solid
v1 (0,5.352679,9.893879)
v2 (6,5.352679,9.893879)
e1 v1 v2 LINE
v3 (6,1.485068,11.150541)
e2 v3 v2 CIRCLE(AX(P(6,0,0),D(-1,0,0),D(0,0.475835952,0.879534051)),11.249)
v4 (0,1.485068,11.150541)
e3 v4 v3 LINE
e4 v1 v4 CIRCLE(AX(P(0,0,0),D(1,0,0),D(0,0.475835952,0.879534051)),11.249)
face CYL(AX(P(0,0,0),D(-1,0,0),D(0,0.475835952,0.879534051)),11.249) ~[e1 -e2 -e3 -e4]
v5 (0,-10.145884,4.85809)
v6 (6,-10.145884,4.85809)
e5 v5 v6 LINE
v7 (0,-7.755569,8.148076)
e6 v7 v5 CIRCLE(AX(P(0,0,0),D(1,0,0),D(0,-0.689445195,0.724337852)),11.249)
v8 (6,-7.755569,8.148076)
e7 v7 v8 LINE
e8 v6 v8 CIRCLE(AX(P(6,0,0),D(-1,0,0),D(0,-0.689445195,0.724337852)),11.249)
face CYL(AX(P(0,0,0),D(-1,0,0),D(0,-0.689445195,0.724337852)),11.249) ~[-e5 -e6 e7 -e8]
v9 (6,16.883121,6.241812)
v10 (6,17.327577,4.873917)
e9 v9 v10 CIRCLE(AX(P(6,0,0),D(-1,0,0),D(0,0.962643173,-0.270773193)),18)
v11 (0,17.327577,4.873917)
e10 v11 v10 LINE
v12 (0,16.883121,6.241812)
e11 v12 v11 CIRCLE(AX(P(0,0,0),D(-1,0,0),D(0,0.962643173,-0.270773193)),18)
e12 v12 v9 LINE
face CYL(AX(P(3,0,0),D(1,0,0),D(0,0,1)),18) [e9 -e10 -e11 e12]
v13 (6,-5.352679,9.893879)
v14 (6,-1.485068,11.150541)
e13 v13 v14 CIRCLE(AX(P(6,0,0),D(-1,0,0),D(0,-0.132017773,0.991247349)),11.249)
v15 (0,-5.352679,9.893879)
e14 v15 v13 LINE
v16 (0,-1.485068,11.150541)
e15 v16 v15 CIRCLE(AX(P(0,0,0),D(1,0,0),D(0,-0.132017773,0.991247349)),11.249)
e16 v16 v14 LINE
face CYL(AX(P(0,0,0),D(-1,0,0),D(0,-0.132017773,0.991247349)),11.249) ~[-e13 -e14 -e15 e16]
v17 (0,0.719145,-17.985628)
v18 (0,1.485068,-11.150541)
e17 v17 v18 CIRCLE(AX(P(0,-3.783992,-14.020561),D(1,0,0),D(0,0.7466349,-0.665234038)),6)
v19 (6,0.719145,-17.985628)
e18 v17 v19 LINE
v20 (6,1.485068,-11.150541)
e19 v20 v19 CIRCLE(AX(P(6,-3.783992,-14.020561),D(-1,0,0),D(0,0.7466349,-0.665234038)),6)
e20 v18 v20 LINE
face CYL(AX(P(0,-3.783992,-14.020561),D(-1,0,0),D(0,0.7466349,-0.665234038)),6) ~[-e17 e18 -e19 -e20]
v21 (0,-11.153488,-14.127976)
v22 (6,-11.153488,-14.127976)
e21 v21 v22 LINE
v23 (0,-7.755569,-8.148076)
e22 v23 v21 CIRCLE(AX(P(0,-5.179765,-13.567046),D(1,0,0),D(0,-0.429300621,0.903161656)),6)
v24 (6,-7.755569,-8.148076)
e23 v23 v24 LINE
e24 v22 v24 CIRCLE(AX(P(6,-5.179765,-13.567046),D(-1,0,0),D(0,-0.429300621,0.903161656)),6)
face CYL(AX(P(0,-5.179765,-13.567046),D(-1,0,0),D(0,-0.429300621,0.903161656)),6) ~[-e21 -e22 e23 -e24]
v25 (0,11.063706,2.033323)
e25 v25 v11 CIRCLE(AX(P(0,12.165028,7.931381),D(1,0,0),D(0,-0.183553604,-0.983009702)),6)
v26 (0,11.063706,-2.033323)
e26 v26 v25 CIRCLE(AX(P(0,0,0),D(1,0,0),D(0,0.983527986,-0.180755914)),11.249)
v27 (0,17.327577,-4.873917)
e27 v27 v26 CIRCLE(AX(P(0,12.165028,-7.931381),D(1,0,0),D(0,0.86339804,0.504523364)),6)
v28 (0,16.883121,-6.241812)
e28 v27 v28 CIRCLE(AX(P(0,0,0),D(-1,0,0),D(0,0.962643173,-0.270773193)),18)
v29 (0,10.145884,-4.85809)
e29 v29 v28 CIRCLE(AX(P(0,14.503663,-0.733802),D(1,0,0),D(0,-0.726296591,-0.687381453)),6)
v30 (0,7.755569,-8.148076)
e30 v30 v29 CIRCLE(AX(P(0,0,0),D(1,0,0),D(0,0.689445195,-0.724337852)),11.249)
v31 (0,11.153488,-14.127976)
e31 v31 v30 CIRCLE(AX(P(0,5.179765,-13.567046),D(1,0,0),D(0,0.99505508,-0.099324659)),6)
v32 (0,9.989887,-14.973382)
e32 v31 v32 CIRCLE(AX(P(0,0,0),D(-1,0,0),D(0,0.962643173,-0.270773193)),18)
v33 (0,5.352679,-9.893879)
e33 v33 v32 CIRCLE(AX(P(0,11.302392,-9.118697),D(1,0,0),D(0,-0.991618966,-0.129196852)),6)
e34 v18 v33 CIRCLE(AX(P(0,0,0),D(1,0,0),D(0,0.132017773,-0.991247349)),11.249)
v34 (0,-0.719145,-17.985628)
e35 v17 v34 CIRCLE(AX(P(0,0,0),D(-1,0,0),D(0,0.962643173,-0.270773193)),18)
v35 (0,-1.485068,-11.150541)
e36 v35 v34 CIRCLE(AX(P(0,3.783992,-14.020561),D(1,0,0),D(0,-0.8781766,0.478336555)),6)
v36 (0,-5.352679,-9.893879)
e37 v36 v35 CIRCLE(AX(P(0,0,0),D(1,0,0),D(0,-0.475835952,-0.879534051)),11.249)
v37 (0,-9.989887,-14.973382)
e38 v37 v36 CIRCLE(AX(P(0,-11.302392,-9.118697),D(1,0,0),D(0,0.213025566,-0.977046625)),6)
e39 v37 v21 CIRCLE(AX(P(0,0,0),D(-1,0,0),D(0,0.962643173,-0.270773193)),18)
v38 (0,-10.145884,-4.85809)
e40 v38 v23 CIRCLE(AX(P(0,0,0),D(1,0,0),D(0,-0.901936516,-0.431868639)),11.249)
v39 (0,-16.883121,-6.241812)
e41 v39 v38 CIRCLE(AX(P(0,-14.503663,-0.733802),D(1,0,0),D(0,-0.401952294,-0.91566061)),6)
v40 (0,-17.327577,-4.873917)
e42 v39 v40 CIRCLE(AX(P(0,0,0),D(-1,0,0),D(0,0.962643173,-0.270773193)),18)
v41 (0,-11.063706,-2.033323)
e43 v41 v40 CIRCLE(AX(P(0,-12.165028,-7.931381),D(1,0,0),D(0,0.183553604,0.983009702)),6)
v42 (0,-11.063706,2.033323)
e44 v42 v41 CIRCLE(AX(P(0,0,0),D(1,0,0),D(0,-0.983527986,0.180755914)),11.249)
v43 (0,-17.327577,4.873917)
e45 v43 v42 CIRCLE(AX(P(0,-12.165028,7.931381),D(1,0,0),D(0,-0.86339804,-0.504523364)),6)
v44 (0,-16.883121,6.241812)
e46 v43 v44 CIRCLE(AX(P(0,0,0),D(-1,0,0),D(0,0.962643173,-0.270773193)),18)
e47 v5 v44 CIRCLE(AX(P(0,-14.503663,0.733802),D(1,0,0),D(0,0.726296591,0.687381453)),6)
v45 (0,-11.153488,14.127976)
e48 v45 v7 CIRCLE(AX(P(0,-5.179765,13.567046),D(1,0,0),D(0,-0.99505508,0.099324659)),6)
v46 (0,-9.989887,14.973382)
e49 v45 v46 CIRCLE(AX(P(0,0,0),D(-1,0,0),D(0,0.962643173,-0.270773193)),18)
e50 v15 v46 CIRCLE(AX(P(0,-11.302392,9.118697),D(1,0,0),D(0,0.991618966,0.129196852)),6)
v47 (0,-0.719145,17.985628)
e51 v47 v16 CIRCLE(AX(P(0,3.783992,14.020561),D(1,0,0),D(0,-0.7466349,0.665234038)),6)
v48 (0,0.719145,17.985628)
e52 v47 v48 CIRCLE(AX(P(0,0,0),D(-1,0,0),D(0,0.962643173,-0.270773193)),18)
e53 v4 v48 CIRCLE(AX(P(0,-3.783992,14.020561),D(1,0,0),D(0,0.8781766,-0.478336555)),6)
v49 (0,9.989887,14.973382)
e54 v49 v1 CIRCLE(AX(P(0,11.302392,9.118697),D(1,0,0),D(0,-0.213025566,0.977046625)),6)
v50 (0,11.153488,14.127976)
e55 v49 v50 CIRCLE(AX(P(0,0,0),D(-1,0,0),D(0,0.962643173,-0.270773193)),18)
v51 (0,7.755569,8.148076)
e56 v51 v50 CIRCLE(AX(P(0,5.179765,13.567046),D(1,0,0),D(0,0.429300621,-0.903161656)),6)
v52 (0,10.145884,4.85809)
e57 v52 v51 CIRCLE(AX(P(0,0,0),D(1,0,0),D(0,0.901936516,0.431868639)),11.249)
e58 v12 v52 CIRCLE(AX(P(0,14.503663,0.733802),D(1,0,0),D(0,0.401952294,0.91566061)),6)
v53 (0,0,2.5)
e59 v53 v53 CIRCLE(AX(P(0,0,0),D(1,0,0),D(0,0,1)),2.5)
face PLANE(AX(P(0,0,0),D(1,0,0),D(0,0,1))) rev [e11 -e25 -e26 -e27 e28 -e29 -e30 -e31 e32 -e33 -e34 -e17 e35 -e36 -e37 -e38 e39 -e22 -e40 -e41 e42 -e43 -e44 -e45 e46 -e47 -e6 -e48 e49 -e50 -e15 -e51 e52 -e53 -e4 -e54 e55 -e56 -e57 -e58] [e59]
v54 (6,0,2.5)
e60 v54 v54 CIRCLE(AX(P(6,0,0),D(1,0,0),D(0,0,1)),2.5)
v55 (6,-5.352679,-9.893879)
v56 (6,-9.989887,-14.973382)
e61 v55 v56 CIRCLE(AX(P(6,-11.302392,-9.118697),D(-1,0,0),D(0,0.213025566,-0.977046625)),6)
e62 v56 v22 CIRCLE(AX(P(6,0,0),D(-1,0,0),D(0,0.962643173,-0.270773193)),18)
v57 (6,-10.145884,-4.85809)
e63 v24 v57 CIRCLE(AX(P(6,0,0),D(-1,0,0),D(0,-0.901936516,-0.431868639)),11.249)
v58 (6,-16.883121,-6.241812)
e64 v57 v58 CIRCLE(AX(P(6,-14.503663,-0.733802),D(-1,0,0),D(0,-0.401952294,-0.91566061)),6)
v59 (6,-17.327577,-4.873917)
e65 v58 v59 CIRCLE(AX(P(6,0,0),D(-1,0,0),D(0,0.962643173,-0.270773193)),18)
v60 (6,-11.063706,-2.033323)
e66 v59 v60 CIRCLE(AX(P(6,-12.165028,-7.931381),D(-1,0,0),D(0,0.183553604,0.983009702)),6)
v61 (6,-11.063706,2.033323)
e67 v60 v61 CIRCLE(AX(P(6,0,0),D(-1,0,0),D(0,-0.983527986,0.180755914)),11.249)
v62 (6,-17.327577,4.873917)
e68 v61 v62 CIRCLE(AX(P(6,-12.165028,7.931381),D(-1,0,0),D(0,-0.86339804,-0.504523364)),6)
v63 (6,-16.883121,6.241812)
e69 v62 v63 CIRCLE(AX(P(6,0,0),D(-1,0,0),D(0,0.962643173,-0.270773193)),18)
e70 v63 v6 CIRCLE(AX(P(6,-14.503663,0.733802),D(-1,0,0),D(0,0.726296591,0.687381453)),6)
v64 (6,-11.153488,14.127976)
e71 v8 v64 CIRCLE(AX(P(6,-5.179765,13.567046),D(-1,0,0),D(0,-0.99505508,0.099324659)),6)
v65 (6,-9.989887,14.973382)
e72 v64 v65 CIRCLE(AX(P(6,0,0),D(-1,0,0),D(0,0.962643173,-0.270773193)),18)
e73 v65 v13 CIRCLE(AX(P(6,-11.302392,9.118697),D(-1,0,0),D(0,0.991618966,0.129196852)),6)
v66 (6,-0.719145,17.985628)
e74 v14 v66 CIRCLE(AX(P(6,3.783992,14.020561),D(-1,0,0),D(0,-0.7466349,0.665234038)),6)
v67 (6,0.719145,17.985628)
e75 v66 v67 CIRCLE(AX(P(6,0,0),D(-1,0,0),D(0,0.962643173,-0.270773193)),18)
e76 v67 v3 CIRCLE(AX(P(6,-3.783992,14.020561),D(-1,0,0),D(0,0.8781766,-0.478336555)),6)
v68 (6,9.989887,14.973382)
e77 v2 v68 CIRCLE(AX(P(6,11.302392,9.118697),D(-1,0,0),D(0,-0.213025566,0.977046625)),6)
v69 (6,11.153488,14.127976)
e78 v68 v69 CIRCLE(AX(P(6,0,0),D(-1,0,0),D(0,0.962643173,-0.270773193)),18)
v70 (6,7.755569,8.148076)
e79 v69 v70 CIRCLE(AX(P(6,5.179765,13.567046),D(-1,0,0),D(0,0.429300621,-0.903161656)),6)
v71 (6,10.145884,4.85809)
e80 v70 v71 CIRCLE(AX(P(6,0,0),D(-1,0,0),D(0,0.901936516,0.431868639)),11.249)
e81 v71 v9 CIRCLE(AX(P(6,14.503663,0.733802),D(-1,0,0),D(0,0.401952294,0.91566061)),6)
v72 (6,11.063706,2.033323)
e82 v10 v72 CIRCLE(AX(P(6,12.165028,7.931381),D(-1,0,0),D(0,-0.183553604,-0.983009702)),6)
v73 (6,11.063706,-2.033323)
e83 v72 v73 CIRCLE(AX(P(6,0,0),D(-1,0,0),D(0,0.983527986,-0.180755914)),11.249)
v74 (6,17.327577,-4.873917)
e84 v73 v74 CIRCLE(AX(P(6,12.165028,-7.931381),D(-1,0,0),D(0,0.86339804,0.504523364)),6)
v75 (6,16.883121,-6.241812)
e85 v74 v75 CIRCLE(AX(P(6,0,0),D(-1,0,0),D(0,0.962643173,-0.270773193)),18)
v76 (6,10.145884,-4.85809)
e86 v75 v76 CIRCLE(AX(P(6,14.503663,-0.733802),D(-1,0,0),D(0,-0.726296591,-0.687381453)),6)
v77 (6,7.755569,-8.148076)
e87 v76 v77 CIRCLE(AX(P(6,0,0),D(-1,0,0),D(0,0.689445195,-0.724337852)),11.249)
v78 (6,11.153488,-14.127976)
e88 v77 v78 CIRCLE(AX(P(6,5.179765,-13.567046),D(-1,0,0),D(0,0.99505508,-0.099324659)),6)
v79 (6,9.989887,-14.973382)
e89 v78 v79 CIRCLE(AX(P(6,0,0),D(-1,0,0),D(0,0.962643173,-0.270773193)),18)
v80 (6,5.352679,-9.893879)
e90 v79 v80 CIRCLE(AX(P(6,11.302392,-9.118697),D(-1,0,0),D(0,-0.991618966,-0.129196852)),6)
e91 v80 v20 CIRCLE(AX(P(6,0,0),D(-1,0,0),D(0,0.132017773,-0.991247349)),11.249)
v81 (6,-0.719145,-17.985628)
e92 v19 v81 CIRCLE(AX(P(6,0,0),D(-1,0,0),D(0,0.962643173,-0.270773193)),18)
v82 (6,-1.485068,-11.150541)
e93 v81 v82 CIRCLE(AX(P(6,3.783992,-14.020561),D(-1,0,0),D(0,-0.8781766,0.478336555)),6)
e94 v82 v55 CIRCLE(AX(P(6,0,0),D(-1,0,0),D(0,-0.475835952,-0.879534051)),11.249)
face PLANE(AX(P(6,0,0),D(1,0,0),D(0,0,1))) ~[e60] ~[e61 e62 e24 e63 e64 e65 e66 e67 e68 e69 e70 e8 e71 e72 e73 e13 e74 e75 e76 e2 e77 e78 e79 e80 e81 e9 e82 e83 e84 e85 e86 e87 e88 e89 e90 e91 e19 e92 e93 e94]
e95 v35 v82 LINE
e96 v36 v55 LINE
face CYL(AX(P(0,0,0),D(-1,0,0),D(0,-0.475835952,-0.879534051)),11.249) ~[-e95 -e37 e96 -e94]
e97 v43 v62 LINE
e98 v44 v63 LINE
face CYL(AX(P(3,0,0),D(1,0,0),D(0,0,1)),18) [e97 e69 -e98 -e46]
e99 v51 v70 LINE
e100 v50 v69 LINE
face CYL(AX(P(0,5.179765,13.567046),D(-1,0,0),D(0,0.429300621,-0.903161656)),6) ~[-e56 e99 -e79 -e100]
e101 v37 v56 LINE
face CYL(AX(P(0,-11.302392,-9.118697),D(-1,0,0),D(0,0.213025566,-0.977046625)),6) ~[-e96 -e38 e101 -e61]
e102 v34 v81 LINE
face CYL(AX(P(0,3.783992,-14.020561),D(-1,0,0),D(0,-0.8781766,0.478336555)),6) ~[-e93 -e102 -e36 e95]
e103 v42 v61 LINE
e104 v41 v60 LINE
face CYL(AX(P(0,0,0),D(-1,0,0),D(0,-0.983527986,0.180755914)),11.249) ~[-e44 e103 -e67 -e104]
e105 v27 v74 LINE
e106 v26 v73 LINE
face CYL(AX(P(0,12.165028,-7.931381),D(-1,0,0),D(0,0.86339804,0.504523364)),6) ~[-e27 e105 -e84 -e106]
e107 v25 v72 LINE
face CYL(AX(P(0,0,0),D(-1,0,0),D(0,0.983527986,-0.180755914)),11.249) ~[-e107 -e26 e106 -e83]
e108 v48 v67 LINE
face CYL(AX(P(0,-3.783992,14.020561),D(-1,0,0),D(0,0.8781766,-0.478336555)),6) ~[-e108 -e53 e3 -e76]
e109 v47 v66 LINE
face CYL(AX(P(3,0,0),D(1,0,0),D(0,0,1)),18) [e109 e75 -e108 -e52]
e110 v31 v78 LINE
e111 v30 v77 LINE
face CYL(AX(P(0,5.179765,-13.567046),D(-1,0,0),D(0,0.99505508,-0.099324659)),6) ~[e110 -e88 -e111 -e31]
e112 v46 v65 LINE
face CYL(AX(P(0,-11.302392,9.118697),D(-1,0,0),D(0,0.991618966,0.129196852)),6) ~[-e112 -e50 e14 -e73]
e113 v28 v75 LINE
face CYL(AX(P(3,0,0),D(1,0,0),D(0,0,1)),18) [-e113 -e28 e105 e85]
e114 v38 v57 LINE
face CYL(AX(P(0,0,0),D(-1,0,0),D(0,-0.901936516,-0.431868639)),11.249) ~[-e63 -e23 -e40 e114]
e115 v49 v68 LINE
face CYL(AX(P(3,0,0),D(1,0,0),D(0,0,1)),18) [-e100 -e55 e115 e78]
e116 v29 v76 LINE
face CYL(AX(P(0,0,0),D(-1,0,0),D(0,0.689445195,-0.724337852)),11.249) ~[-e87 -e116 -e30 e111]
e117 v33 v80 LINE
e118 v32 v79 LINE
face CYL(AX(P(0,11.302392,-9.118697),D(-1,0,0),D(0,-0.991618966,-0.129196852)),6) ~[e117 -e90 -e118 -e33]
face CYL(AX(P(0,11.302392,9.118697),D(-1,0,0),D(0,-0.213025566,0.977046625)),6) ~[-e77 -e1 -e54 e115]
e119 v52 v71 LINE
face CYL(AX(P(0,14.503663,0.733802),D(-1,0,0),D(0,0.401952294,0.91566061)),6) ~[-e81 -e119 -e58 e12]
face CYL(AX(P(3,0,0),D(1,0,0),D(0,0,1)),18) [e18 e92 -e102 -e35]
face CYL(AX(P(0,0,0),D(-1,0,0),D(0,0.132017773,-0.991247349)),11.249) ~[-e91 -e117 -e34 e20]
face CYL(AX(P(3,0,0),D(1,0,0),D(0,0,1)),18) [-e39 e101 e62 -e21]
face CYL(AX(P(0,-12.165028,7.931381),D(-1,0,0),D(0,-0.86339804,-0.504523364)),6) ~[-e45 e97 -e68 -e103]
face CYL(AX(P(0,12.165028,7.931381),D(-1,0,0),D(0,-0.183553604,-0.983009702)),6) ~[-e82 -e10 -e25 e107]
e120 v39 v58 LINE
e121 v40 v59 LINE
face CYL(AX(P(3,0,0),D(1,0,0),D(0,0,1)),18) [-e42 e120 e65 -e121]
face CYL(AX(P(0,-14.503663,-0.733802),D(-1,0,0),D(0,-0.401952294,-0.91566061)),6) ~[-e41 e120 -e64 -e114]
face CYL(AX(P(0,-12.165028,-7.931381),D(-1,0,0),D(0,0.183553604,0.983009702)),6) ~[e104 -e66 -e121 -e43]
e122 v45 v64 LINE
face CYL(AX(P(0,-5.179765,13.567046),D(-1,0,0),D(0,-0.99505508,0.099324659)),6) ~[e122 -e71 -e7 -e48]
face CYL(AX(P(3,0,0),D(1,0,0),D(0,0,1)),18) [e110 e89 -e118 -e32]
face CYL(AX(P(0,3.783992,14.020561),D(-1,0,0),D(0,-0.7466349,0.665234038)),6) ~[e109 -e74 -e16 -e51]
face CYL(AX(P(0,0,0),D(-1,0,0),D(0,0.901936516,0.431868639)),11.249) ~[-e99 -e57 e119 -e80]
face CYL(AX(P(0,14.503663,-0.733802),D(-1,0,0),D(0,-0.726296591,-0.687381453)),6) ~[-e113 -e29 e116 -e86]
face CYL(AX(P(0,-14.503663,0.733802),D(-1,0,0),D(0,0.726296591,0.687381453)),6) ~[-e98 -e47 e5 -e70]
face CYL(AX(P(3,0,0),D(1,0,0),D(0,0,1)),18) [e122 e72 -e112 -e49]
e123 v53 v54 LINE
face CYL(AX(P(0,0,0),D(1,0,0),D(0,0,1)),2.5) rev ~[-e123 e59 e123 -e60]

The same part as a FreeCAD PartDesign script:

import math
import FreeCAD as App
import Part
import Sketcher
from FreeCAD import Vector

doc = App.newDocument("Part")
params = doc.addObject("Spreadsheet::Sheet", "Params")
for row, (alias, value) in enumerate([
    ("sketch1_width", "6 mm"),
    ("sketch1_height", "18 mm"),
    ("revolution_angle", "360 deg"),
    ("sketch2_radius", "6 mm"),
    ("sketch3_diameter", "5 mm"),
    ("pocket2_length", "100.000102 mm"),
], start=1):
    params.set(f"A{row}", alias)
    params.set(f"B{row}", "=" + value)
    params.setAlias(f"B{row}", alias)

body = doc.addObject("PartDesign::Body", "Body")

# Sketch on XZ plane
sketch1 = body.newObject("Sketcher::SketchObject", "Sketch")
sketch1.AttachmentSupport = (doc.getObject("XZ_Plane"), [""])
sketch1.MapMode = "FlatFace"
sketch1.addGeometry([
    Part.LineSegment(Vector(0, -18, 0), Vector(0, 0, 0)),
    Part.LineSegment(Vector(0, 0, 0), Vector(6, 0, 0)),
    Part.LineSegment(Vector(6, 0, 0), Vector(6, -18, 0)),
    Part.LineSegment(Vector(6, -18, 0), Vector(0, -18, 0)),
], False)
sketch1.addConstraint([
    Sketcher.Constraint("Coincident", 0, 2, 1, 1),
    Sketcher.Constraint("Coincident", 1, 2, 2, 1),
    Sketcher.Constraint("Coincident", 2, 2, 3, 1),
    Sketcher.Constraint("Coincident", 3, 2, 0, 1),
    Sketcher.Constraint("Vertical", 0),
    Sketcher.Constraint("Horizontal", 1),
    Sketcher.Constraint("Vertical", 2),
    Sketcher.Constraint("Horizontal", 3),
    Sketcher.Constraint("Coincident", 0, 2, -1, 1),
    Sketcher.Constraint("DistanceX", 1, 1, 1, 2, 6.0),
    Sketcher.Constraint("DistanceY", 0, 1, 0, 2, 18.0),
])
sketch1.setExpression("Constraints[9]", "Params.sketch1_width")
sketch1.setExpression("Constraints[10]", "Params.sketch1_height")
revolution = body.newObject("PartDesign::Revolution", "Revolution")
revolution.Profile = sketch1
revolution.ReferenceAxis = (sketch1, ["H_Axis"])
revolution.setExpression("Angle", "Params.revolution_angle")

# Sketch on YZ plane
sketch2 = body.newObject("Sketcher::SketchObject", "Sketch001")
sketch2.AttachmentSupport = (doc.getObject("YZ_Plane"), [""])
sketch2.MapMode = "FlatFace"
sketch2.addGeometry([
    Part.ArcOfCircle(Part.Circle(Vector(0, 0, 0), Vector(0, 0, 1), 11.2), math.radians(-10), math.radians(10)),
    Part.ArcOfCircle(Part.Circle(Vector(12.2, -7.9, 0), Vector(0, 0, 1), 6), math.radians(30), math.radians(101)),
    Part.ArcOfCircle(Part.Circle(Vector(0, 0, 0), Vector(0, 0, 1), 18), math.radians(-16), math.radians(16)),
    Part.ArcOfCircle(Part.Circle(Vector(12.2, 7.9, 0), Vector(0, 0, 1), 6), math.radians(-101), math.radians(-30)),
], False)
sketch2.addConstraint([
    Sketcher.Constraint("Coincident", 0, 1, 1, 2),
    Sketcher.Constraint("Coincident", 1, 1, 2, 1),
    Sketcher.Constraint("Coincident", 2, 2, 3, 2),
    Sketcher.Constraint("Coincident", 3, 1, 0, 2),
    Sketcher.Constraint("Coincident", 0, 3, -1, 1),
    Sketcher.Constraint("Coincident", 2, 3, -1, 1),
    Sketcher.Constraint("Equal", 1, 3),
    Sketcher.Constraint("Symmetric", 1, 3, 3, 3, -1),
    Sketcher.Constraint("Radius", 1, 6.0),
    Sketcher.Constraint("Radius", 0, 11.249),
    Sketcher.Constraint("Radius", 2, 18.0254),
    Sketcher.Constraint("DistanceY", 1, 3, -1, 1, 7.931381),
    Sketcher.Constraint("DistanceY", 1, 1, -1, 1, 4.904241),
])
sketch2.setExpression("Constraints[8]", "Params.sketch2_radius")
pocket1 = body.newObject("PartDesign::Pocket", "Pocket")
pocket1.Profile = sketch2
pocket1.Type = "ThroughAll"
pocket1.Reversed = True
doc.recompute()

polarpattern = body.newObject("PartDesign::PolarPattern", "PolarPattern")
polarpattern.Originals = [pocket1]
polarpattern.Axis = (doc.getObject("X_Axis"), [""])
polarpattern.Angle = 360
polarpattern.Occurrences = 10
body.Tip = polarpattern

# Sketch on YZ plane
sketch3 = body.newObject("Sketcher::SketchObject", "Sketch002")
sketch3.AttachmentSupport = (doc.getObject("YZ_Plane"), [""])
sketch3.MapMode = "FlatFace"
sketch3.addGeometry(Part.Circle(Vector(0, 0, 0), Vector(0, 0, 1), 2.5), False)
sketch3.addConstraint([
    Sketcher.Constraint("Coincident", 0, 3, -1, 1),
    Sketcher.Constraint("Diameter", 0, 5.0),
])
sketch3.setExpression("Constraints[1]", "Params.sketch3_diameter")
pocket2 = body.newObject("PartDesign::Pocket", "Pocket001")
pocket2.Profile = sketch3
pocket2.setExpression("Length", "Params.pocket2_length")
pocket2.Midplane = True

doc.recompute()
